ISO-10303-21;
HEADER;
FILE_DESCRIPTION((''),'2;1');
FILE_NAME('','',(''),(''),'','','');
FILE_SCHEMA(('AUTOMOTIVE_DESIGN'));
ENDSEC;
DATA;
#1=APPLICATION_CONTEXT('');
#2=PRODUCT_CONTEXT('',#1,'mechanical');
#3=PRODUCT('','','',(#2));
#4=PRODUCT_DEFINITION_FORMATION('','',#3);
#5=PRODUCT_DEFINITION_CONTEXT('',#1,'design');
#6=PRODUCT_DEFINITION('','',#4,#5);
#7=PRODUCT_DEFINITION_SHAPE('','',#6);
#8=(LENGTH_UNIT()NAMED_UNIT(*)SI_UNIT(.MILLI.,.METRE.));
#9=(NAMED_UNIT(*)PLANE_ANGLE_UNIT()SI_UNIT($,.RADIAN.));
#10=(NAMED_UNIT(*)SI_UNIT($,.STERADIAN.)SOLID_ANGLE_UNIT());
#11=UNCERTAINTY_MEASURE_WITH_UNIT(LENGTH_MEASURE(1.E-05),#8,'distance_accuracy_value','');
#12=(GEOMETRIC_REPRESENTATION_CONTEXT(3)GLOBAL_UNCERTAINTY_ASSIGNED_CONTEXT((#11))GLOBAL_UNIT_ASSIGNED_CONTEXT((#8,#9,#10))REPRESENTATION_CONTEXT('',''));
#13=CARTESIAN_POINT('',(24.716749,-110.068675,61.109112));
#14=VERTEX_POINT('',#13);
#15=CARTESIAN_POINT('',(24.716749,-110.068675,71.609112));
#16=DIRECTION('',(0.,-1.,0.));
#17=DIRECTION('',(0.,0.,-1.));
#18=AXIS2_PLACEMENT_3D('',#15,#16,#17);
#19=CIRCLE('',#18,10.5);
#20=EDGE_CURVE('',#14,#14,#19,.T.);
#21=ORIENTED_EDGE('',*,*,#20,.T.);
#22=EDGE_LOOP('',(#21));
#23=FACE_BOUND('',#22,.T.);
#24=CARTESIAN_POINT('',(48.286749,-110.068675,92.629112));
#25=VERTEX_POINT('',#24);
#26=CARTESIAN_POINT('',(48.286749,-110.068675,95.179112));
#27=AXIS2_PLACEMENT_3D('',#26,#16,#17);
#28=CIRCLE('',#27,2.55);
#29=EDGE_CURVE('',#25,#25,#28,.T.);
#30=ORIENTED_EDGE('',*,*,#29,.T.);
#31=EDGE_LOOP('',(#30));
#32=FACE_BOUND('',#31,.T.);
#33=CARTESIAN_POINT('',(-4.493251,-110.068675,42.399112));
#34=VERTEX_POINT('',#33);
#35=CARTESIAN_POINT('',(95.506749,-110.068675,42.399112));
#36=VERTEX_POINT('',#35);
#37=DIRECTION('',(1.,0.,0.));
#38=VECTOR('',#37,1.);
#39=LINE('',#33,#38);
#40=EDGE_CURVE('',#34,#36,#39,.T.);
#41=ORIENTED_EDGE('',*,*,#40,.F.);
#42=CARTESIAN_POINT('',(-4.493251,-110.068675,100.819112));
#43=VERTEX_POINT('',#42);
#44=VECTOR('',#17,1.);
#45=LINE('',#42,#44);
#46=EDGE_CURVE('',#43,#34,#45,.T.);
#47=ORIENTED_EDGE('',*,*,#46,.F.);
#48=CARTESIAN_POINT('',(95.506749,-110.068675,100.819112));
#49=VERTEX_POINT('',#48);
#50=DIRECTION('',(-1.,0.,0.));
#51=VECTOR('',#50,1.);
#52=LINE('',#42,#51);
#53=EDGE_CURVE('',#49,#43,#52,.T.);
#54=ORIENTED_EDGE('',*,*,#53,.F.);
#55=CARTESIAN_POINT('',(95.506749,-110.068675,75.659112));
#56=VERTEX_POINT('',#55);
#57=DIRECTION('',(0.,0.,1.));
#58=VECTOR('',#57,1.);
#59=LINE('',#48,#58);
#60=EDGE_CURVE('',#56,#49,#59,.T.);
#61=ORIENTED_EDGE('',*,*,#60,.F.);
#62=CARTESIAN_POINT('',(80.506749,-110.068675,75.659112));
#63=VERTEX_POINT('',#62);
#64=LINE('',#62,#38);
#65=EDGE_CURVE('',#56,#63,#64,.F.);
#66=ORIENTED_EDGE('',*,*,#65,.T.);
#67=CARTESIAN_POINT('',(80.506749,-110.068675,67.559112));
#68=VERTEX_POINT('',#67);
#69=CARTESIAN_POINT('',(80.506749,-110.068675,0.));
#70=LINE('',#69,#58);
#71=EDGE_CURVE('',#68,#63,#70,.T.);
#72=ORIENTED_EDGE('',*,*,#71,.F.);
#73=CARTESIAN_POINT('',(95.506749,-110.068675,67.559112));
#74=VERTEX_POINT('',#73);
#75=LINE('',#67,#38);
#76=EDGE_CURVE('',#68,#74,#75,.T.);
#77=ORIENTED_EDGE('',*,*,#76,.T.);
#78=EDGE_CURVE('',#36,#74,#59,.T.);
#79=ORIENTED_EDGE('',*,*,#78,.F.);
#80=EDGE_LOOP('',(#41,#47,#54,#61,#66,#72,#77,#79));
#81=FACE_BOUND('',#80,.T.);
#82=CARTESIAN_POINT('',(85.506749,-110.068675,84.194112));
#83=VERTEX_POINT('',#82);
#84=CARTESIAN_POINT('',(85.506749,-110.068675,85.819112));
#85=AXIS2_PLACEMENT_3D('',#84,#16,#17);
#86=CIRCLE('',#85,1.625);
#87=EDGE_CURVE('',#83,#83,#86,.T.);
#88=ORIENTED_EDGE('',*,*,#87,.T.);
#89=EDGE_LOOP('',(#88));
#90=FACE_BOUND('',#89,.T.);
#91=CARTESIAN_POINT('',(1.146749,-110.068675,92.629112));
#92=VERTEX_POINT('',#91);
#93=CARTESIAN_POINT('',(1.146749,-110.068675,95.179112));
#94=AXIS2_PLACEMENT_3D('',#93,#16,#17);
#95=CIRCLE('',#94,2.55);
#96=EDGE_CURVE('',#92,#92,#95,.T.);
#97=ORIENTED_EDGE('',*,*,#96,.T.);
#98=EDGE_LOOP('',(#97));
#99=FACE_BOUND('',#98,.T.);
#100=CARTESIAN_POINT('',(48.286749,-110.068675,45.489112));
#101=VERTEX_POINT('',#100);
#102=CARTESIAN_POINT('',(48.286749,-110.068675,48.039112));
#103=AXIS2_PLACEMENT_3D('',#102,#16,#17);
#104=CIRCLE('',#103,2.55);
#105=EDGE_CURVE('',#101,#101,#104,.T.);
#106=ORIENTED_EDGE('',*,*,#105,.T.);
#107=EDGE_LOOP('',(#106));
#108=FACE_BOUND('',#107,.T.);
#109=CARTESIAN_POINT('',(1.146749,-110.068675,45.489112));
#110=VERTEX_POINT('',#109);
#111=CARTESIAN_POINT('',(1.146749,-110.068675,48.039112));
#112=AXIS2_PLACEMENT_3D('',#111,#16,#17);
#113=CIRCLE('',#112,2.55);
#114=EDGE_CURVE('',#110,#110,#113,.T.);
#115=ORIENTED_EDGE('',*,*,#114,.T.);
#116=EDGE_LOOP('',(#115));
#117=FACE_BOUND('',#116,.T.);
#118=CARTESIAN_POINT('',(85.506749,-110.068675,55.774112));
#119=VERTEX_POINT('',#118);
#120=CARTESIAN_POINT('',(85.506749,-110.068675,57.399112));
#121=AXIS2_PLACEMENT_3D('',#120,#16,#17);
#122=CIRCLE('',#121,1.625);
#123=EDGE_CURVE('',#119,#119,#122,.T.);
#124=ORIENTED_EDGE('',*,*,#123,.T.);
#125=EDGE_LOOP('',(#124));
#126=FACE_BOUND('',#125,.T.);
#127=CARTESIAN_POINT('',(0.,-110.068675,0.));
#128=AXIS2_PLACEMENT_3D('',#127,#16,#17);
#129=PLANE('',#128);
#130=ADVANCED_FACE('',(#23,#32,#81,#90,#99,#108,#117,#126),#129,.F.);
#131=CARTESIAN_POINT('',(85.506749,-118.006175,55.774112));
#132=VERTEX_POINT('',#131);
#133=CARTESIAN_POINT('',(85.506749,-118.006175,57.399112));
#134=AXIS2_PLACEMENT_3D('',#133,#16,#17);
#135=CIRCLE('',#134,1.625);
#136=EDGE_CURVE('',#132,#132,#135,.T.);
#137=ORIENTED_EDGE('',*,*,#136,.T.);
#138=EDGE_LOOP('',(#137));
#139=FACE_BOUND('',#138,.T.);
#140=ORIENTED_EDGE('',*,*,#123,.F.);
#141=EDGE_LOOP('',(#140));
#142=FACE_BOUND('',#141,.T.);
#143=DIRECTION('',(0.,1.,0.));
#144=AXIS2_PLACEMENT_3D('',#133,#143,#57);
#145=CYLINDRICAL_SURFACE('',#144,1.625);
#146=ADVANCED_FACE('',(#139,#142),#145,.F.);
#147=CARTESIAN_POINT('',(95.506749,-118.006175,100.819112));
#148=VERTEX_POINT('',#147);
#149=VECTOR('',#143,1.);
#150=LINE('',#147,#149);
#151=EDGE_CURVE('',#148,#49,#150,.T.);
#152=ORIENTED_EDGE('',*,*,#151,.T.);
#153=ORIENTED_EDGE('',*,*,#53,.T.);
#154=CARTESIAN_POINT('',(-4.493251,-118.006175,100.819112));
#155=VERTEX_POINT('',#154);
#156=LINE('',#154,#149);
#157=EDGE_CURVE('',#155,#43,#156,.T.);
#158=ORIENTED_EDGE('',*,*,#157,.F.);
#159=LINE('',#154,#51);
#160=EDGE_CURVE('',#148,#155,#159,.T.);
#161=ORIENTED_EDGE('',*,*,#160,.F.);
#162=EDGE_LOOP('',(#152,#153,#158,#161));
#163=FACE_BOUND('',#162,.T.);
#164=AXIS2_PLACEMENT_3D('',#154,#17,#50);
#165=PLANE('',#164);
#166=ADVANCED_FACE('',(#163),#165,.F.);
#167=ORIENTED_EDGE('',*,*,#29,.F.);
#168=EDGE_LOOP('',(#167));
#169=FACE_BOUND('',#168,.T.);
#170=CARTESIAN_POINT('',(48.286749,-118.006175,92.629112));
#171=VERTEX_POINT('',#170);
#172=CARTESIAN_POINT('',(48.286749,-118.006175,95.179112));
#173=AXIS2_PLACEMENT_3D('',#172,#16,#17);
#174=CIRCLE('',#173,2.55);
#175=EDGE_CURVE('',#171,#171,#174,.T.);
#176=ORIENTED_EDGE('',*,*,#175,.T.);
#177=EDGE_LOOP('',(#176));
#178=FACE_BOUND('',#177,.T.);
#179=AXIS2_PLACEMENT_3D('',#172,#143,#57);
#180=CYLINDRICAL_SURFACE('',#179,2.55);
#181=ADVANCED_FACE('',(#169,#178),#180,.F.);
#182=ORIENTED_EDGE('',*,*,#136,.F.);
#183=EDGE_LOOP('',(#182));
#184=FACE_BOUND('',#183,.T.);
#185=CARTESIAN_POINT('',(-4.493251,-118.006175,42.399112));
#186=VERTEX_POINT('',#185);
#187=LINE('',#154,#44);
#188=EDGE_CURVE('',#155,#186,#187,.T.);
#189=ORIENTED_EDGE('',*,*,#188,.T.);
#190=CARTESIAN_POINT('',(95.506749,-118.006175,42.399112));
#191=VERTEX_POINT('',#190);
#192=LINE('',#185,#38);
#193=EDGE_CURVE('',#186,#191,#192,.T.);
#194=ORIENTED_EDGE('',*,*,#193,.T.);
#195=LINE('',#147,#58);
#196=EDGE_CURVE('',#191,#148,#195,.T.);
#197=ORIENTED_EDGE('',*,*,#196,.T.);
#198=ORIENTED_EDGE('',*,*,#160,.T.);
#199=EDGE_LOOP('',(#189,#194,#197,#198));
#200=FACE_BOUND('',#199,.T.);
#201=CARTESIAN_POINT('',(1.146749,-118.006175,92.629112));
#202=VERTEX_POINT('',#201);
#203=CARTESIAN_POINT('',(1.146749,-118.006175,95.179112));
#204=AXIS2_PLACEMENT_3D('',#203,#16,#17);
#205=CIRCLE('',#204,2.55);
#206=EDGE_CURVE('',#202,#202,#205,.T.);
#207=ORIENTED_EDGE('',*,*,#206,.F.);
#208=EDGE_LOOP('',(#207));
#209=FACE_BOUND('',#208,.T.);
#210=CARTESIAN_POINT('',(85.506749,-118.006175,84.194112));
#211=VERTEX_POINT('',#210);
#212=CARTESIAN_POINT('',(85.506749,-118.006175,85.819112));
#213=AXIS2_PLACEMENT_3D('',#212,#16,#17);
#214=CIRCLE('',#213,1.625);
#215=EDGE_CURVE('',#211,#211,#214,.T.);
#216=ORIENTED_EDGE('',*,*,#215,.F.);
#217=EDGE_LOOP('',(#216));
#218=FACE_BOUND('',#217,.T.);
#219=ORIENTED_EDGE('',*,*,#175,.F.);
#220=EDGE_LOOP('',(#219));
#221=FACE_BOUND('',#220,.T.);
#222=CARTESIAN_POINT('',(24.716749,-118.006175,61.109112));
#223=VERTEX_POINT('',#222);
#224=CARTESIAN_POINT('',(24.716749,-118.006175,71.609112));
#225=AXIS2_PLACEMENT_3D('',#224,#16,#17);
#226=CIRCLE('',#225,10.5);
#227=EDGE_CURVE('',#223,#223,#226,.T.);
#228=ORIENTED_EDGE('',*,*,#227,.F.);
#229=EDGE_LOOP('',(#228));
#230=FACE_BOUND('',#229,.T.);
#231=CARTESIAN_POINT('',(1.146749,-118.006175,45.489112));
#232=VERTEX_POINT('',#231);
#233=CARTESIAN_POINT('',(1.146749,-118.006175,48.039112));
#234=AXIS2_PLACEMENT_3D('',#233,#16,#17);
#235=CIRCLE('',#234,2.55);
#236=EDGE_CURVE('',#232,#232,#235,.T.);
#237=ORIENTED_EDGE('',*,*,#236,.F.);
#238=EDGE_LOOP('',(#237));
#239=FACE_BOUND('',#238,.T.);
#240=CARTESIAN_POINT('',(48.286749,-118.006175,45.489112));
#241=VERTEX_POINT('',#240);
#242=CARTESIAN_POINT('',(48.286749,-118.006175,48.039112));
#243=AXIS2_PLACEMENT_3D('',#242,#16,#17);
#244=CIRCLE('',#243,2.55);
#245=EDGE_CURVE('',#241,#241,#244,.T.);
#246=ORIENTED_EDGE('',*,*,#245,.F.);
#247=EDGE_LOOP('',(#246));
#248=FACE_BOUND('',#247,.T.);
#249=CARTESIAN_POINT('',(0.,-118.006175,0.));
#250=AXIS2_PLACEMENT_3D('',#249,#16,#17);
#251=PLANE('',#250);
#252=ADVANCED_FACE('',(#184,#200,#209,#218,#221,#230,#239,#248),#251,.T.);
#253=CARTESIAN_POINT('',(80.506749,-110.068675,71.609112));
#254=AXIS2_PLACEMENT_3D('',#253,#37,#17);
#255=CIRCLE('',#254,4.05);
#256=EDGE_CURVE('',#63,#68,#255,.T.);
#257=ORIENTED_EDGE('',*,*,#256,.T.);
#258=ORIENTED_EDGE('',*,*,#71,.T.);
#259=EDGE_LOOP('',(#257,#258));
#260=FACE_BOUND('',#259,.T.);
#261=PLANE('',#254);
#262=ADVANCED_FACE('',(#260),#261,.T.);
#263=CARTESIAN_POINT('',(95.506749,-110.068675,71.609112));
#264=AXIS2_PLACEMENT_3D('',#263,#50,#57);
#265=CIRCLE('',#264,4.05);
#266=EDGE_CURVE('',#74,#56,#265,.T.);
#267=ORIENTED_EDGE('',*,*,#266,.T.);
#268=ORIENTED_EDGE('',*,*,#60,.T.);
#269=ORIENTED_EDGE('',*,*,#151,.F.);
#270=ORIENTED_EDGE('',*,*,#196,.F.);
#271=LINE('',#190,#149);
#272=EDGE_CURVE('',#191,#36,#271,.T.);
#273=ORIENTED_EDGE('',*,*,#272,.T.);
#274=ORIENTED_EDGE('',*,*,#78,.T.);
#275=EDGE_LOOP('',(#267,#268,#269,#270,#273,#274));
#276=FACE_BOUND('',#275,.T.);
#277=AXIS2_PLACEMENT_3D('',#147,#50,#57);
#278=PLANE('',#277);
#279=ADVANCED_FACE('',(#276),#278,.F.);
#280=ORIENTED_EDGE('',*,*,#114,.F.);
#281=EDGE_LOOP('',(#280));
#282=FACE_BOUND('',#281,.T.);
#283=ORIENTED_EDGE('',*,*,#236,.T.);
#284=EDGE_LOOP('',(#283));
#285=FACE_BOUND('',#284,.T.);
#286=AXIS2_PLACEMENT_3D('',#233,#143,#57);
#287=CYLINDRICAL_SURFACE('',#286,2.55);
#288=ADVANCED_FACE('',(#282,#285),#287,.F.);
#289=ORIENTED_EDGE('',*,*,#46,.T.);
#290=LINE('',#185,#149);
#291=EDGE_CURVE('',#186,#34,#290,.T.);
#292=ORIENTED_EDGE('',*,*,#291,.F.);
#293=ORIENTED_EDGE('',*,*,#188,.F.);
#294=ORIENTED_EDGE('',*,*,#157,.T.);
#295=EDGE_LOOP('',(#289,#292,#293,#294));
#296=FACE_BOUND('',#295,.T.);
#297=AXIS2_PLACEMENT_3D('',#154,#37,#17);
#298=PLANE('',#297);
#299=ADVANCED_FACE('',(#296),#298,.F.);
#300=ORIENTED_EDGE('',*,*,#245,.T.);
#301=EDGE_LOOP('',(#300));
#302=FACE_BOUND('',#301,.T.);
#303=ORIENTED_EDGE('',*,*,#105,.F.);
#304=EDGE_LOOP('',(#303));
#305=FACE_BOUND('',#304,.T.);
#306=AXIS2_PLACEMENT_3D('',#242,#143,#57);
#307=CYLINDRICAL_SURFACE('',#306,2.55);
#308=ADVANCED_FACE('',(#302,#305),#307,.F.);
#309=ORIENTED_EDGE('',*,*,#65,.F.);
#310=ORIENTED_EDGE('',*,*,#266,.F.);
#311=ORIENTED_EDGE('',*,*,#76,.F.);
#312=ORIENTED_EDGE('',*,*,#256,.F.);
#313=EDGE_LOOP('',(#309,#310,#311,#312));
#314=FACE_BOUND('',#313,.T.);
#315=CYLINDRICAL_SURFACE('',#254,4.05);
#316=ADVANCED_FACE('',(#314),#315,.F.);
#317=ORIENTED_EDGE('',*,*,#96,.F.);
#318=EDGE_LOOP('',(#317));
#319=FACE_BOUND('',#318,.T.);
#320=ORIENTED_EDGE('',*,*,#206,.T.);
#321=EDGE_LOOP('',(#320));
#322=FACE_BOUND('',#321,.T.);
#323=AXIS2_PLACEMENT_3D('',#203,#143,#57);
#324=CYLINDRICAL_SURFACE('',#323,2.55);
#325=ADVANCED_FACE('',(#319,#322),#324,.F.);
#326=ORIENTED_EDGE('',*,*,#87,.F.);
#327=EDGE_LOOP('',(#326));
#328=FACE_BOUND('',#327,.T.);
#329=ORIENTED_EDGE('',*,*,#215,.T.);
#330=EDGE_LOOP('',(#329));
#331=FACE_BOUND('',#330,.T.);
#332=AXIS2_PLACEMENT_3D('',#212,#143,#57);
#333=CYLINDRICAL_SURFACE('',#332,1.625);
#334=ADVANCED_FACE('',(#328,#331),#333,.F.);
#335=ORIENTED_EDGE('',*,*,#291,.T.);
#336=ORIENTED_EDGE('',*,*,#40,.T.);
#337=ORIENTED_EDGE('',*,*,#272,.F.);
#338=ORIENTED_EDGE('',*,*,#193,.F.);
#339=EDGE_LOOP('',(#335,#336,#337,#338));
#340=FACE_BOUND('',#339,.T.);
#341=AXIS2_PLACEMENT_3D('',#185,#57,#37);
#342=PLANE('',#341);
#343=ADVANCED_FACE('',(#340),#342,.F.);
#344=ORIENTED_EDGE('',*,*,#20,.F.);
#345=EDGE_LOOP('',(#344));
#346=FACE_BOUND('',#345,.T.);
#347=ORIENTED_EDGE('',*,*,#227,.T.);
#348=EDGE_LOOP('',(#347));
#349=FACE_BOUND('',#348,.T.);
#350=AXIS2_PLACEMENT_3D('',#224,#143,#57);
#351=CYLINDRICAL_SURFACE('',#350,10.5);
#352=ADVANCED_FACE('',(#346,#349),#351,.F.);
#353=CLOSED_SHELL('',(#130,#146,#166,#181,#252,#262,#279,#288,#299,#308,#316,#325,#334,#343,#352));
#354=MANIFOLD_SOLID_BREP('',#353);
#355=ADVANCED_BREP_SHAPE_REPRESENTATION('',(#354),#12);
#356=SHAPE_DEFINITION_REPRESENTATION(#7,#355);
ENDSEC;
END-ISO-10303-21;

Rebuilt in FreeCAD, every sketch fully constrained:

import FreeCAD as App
import Part
import Sketcher

doc = App.newDocument("Part")
params = doc.addObject("Spreadsheet::Sheet", "Params")
for row, (alias, value) in enumerate([
    ("sketch1_diameter", "21 mm"),
    ("sketch1_diameter2", "5.1 mm"),
    ("sketch1_diameter3", "3.25 mm"),
    ("sketch1_width", "100 mm"),
    ("sketch1_height", "58.42 mm"),
    ("pad1_length", "7.9375 mm"),
    ("sketch2_diameter", "8.1 mm"),
    ("pocket1_length", "15 mm"),
], start=1):
    params.set(f"A{row}", alias)
    params.set(f"B{row}", "=" + value)
    params.setAlias(f"B{row}", alias)

body = doc.addObject("PartDesign::Body", "Body")

# Sketch on XZ plane
sketch1 = body.newObject("Sketcher::SketchObject", "Sketch")
sketch1.AttachmentSupport = (doc.getObject("XZ_Plane"), [""])
sketch1.MapMode = "FlatFace"
sketch1.AttachmentOffset = App.Placement(App.Vector(0, 0, 110.068675), App.Rotation())
sketch1.addGeometry(Part.LineSegment(App.Vector(-4.5, 100.8, 0), App.Vector(-4.5, 42.4, 0)), False)
sketch1.addGeometry(Part.LineSegment(App.Vector(-4.5, 42.4, 0), App.Vector(95.5, 42.4, 0)), False)
sketch1.addGeometry(Part.LineSegment(App.Vector(95.5, 42.4, 0), App.Vector(95.5, 100.8, 0)), False)
sketch1.addGeometry(Part.LineSegment(App.Vector(95.5, 100.8, 0), App.Vector(-4.5, 100.8, 0)), False)
sketch1.addGeometry(Part.Circle(App.Vector(1.1, 48, 0), App.Vector(0, 0, 1), 2.5), False)
sketch1.addGeometry(Part.Circle(App.Vector(48.3, 48, 0), App.Vector(0, 0, 1), 2.5), False)
sketch1.addGeometry(Part.Circle(App.Vector(85.5, 57.4, 0), App.Vector(0, 0, 1), 1.6), False)
sketch1.addGeometry(Part.Circle(App.Vector(24.7, 71.6, 0), App.Vector(0, 0, 1), 10.5), False)
sketch1.addGeometry(Part.Circle(App.Vector(1.1, 95.2, 0), App.Vector(0, 0, 1), 2.5), False)
sketch1.addGeometry(Part.Circle(App.Vector(48.3, 95.2, 0), App.Vector(0, 0, 1), 2.5), False)
sketch1.addGeometry(Part.Circle(App.Vector(85.5, 85.8, 0), App.Vector(0, 0, 1), 1.6), False)
sketch1.addConstraint(Sketcher.Constraint("Coincident", 0, 2, 1, 1))
sketch1.addConstraint(Sketcher.Constraint("Coincident", 1, 2, 2, 1))
sketch1.addConstraint(Sketcher.Constraint("Coincident", 2, 2, 3, 1))
sketch1.addConstraint(Sketcher.Constraint("Coincident", 3, 2, 0, 1))
sketch1.addConstraint(Sketcher.Constraint("Vertical", 0))
sketch1.addConstraint(Sketcher.Constraint("Horizontal", 1))
sketch1.addConstraint(Sketcher.Constraint("Vertical", 2))
sketch1.addConstraint(Sketcher.Constraint("Horizontal", 3))
sketch1.addConstraint(Sketcher.Constraint("Equal", 4, 5))
sketch1.addConstraint(Sketcher.Constraint("Equal", 5, 8))
sketch1.addConstraint(Sketcher.Constraint("Equal", 8, 9))
sketch1.addConstraint(Sketcher.Constraint("Equal", 6, 10))
sketch1.addConstraint(Sketcher.Constraint("Horizontal", 4, 3, 5, 3))
sketch1.addConstraint(Sketcher.Constraint("Horizontal", 8, 3, 9, 3))
sketch1.addConstraint(Sketcher.Constraint("Vertical", 4, 3, 8, 3))
sketch1.addConstraint(Sketcher.Constraint("Vertical", 5, 3, 9, 3))
sketch1.addConstraint(Sketcher.Constraint("Vertical", 6, 3, 10, 3))
sketch1.addConstraint(Sketcher.Constraint("Diameter", 7, 21.0))
sketch1.addConstraint(Sketcher.Constraint("Diameter", 4, 5.1))
sketch1.addConstraint(Sketcher.Constraint("Diameter", 6, 3.25))
sketch1.addConstraint(Sketcher.Constraint("DistanceX", 1, 1, 1, 2, 100.0))
sketch1.addConstraint(Sketcher.Constraint("DistanceX", 6, 3, 1, 2, 10.0))
sketch1.addConstraint(Sketcher.Constraint("DistanceY", 1, 2, 6, 3, 15.0))
sketch1.addConstraint(Sketcher.Constraint("DistanceY", 10, 3, 2, 2, 15.0))
sketch1.addConstraint(Sketcher.Constraint("DistanceY", 0, 2, 0, 1, 58.42))
sketch1.addConstraint(Sketcher.Constraint("DistanceX", 4, 3, 5, 3, 47.14))
sketch1.addConstraint(Sketcher.Constraint("DistanceX", 5, 3, 6, 3, 37.22))
sketch1.addConstraint(Sketcher.Constraint("DistanceY", 5, 3, 6, 3, 9.36))
sketch1.addConstraint(Sketcher.Constraint("DistanceX", 4, 3, 7, 3, 23.57))
sketch1.addConstraint(Sketcher.Constraint("DistanceY", 4, 3, 7, 3, 23.57))
sketch1.addConstraint(Sketcher.Constraint("DistanceY", 7, 3, 8, 3, 23.57))
sketch1.addConstraint(Sketcher.Constraint("DistanceX", -1, 1, 4, 3, 1.146749))
sketch1.addConstraint(Sketcher.Constraint("DistanceY", -1, 1, 4, 3, 48.039112))
sketch1.setExpression("Constraints[17]", "Params.sketch1_diameter")
sketch1.setExpression("Constraints[18]", "Params.sketch1_diameter2")
sketch1.setExpression("Constraints[19]", "Params.sketch1_diameter3")
sketch1.setExpression("Constraints[20]", "Params.sketch1_width")
sketch1.setExpression("Constraints[24]", "Params.sketch1_height")
pad1 = body.newObject("PartDesign::Pad", "Pad")
pad1.Profile = sketch1
pad1.setExpression("Length", "Params.pad1_length")

# Sketch on YZ plane
sketch2 = body.newObject("Sketcher::SketchObject", "Sketch001")
sketch2.AttachmentSupport = (doc.getObject("YZ_Plane"), [""])
sketch2.MapMode = "FlatFace"
sketch2.AttachmentOffset = App.Placement(App.Vector(0, 0, 95.506749), App.Rotation())
sketch2.addGeometry(Part.Circle(App.Vector(-110.1, 71.6, 0), App.Vector(0, 0, 1), 4), False)
sketch2.addConstraint(Sketcher.Constraint("Diameter", 0, 8.1))
sketch2.addConstraint(Sketcher.Constraint("DistanceY", -1, 1, 0, 3, 71.609112))
sketch2.addConstraint(Sketcher.Constraint("DistanceX", 0, 3, -1, 1, 110.068675))
sketch2.setExpression("Constraints[0]", "Params.sketch2_diameter")
pocket1 = body.newObject("PartDesign::Pocket", "Pocket")
pocket1.Profile = sketch2
pocket1.setExpression("Length", "Params.pocket1_length")

doc.recompute()
